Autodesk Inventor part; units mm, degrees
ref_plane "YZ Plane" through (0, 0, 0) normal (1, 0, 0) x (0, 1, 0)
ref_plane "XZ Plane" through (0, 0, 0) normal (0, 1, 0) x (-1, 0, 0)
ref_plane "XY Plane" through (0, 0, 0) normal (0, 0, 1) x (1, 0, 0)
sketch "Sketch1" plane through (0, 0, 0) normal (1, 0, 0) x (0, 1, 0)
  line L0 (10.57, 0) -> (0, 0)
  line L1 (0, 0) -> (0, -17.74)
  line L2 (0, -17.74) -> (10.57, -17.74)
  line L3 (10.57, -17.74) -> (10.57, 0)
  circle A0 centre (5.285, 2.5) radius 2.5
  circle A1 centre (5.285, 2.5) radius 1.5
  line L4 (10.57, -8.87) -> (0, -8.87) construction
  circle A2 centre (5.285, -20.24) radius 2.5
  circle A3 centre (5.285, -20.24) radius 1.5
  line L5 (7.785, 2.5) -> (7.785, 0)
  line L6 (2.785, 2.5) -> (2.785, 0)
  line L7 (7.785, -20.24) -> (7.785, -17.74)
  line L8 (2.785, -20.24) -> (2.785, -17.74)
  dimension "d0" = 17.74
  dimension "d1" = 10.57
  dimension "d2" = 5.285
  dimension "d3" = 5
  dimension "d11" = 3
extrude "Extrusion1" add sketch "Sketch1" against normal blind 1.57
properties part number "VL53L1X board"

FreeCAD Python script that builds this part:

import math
import FreeCAD as App
import Part
import Sketcher

V = App.Vector
Q = App.Units.Quantity

doc = App.newDocument("Part")
body = doc.addObject("PartDesign::Body", "Body")

# Sketch on YZ plane
sketch1 = doc.addObject("Sketcher::SketchObject", "Sketch")
body.addObject(sketch1)
sketch1.AttachmentSupport = (doc.YZ_Plane, [""])
sketch1.MapMode = "FlatFace"
sketch1.addGeometry(Part.LineSegment(V(10.6, -17.7, 0), V(10.6, 0, 0)), False)
sketch1.addGeometry(Part.LineSegment(V(10.6, 0, 0), V(7.8, 0, 0)), False)
sketch1.addGeometry(Part.LineSegment(V(7.8, 0, 0), V(7.8, 2.5, 0)), False)
sketch1.addGeometry(Part.ArcOfCircle(Part.Circle(V(5.3, 2.5, 0), V(0, 0, 1), 2.5), math.radians(0), math.radians(180)), False)
sketch1.addGeometry(Part.LineSegment(V(2.8, 2.5, 0), V(2.8, 0, 0)), False)
sketch1.addGeometry(Part.LineSegment(V(2.8, 0, 0), V(0, 0, 0)), False)
sketch1.addGeometry(Part.LineSegment(V(0, 0, 0), V(0, -17.7, 0)), False)
sketch1.addGeometry(Part.LineSegment(V(0, -17.7, 0), V(2.8, -17.7, 0)), False)
sketch1.addGeometry(Part.LineSegment(V(2.8, -17.7, 0), V(2.8, -20.2, 0)), False)
sketch1.addGeometry(Part.ArcOfCircle(Part.Circle(V(5.3, -20.2, 0), V(0, 0, 1), 2.5), math.radians(180), math.radians(360)), False)
sketch1.addGeometry(Part.LineSegment(V(7.8, -20.2, 0), V(7.8, -17.7, 0)), False)
sketch1.addGeometry(Part.LineSegment(V(7.8, -17.7, 0), V(10.6, -17.7, 0)), False)
sketch1.addGeometry(Part.Circle(V(5.3, -20.2, 0), V(0, 0, 1), 1.5), False)
sketch1.addGeometry(Part.Circle(V(5.3, 2.5, 0), V(0, 0, 1), 1.5), False)
sketch1.addConstraint(Sketcher.Constraint("Coincident", 0, 2, 1, 1))
sketch1.addConstraint(Sketcher.Constraint("Coincident", 1, 2, 2, 1))
sketch1.addConstraint(Sketcher.Constraint("Tangent", 2, 2, 3, 1))
sketch1.addConstraint(Sketcher.Constraint("Tangent", 3, 2, 4, 1))
sketch1.addConstraint(Sketcher.Constraint("Coincident", 4, 2, 5, 1))
sketch1.addConstraint(Sketcher.Constraint("Coincident", 5, 2, 6, 1))
sketch1.addConstraint(Sketcher.Constraint("Coincident", 6, 2, 7, 1))
sketch1.addConstraint(Sketcher.Constraint("Coincident", 7, 2, 8, 1))
sketch1.addConstraint(Sketcher.Constraint("Tangent", 8, 2, 9, 1))
sketch1.addConstraint(Sketcher.Constraint("Tangent", 9, 2, 10, 1))
sketch1.addConstraint(Sketcher.Constraint("Coincident", 10, 2, 11, 1))
sketch1.addConstraint(Sketcher.Constraint("Coincident", 11, 2, 0, 1))
sketch1.addConstraint(Sketcher.Constraint("Vertical", 0))
sketch1.addConstraint(Sketcher.Constraint("Horizontal", 1))
sketch1.addConstraint(Sketcher.Constraint("Vertical", 2))
sketch1.addConstraint(Sketcher.Constraint("Vertical", 4))
sketch1.addConstraint(Sketcher.Constraint("Horizontal", 5))
sketch1.addConstraint(Sketcher.Constraint("Vertical", 6))
sketch1.addConstraint(Sketcher.Constraint("Horizontal", 7))
sketch1.addConstraint(Sketcher.Constraint("Vertical", 8))
sketch1.addConstraint(Sketcher.Constraint("Vertical", 10))
sketch1.addConstraint(Sketcher.Constraint("Horizontal", 11))
sketch1.addConstraint(Sketcher.Constraint("Coincident", 5, 2, -1, 1))
sketch1.addConstraint(Sketcher.Constraint("Coincident", 12, 3, 9, 3))
sketch1.addConstraint(Sketcher.Constraint("Coincident", 13, 3, 3, 3))
sketch1.addConstraint(Sketcher.Constraint("Equal", 3, 9))
sketch1.addConstraint(Sketcher.Constraint("Equal", 12, 13))
sketch1.addConstraint(Sketcher.Constraint("PointOnObject", 0, 2, -1))
sketch1.addConstraint(Sketcher.Constraint("Horizontal", 7, 2, 10, 2))
sketch1.addConstraint(Sketcher.Constraint("Vertical", 3, 3, 9, 3))
sketch1.addConstraint(Sketcher.Constraint("Equal", 1, 5))
sketch1.addConstraint(Sketcher.Constraint("Equal", 4, 8))
sketch1.addConstraint(Sketcher.Constraint("Diameter", 12, Q("3 mm")))
sketch1.addConstraint(Sketcher.Constraint("Radius", 3, Q("2.5 mm")))
sketch1.addConstraint(Sketcher.Constraint("DistanceY", 0, 1, 0, 2, Q("17.74 mm")))
sketch1.addConstraint(Sketcher.Constraint("DistanceX", -1, 1, 0, 2, Q("10.57 mm")))
sketch1.addConstraint(Sketcher.Constraint("DistanceY", 2, 1, 2, 2, Q("2.5 mm")))
pad1 = doc.addObject("PartDesign::Pad", "Pad")
body.addObject(pad1)
pad1.Profile = sketch1
pad1.Length = 1.57
pad1.Reversed = True

doc.recompute()
